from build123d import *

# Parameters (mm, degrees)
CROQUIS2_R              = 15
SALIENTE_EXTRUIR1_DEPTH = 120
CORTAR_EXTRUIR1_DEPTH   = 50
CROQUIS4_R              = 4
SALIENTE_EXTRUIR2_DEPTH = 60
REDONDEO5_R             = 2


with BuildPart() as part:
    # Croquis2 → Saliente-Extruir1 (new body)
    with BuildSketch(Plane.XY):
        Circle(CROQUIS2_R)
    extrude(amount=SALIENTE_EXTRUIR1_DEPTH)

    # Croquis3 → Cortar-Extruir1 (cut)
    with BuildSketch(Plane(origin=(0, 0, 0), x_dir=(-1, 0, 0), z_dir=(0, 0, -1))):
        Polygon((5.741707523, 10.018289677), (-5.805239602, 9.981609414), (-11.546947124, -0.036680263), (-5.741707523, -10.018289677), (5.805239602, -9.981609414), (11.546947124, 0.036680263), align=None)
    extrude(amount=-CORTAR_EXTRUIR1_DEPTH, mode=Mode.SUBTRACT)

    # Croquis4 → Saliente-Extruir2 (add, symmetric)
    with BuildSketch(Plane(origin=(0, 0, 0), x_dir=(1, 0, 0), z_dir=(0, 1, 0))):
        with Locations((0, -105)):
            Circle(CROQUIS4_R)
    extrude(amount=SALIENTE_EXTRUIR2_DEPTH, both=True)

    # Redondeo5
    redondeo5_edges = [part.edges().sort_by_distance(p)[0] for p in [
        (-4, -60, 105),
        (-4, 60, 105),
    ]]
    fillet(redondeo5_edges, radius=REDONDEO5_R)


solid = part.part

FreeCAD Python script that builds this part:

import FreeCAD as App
import Part
import Sketcher

V = App.Vector


def edges_at(feature, points):
    """Names of the edges that pass closest to the given points."""
    edges = feature.Shape.Edges
    near = lambda p: min(range(len(edges)), key=lambda i: edges[i].distToShape(Part.Vertex(*p))[0])
    return sorted({f"Edge{near(p) + 1}" for p in points})

doc = App.newDocument("Part")
body = doc.addObject("PartDesign::Body", "Body")

sketch1 = body.newObject("Sketcher::SketchObject", "Sketch")
sketch1.AttachmentSupport = (doc.getObject("XY_Plane"), [""])
sketch1.MapMode = "FlatFace"
sketch1.addGeometry(Part.Circle(V(0, 0, 0), V(0, 0, 1), 15), False)
sketch1.addConstraint(Sketcher.Constraint("Coincident", 0, 3, -1, 1))
sketch1.addConstraint(Sketcher.Constraint("Diameter", 0, 30.0))
pad1 = body.newObject("PartDesign::Pad", "Pad")
pad1.Profile = sketch1
pad1.Length = 120

sketch2 = body.newObject("Sketcher::SketchObject", "Sketch001")
sketch2.AttachmentSupport = (doc.getObject("XY_Plane"), [""])
sketch2.MapMode = "FlatFace"
sketch2.addGeometry(Part.LineSegment(V(-6, 10, 0), V(6, 10, 0)), False)
sketch2.addGeometry(Part.LineSegment(V(6, 10, 0), V(12, 0, 0)), False)
sketch2.addGeometry(Part.LineSegment(V(12, 0, 0), V(6, -10, 0)), False)
sketch2.addGeometry(Part.LineSegment(V(6, -10, 0), V(-6, -10, 0)), False)
sketch2.addGeometry(Part.LineSegment(V(-6, -10, 0), V(-12, 0, 0)), False)
sketch2.addGeometry(Part.LineSegment(V(-12, 0, 0), V(-6, 10, 0)), False)
sketch2.addConstraint(Sketcher.Constraint("Coincident", 0, 2, 1, 1))
sketch2.addConstraint(Sketcher.Constraint("Coincident", 1, 2, 2, 1))
sketch2.addConstraint(Sketcher.Constraint("Coincident", 2, 2, 3, 1))
sketch2.addConstraint(Sketcher.Constraint("Coincident", 3, 2, 4, 1))
sketch2.addConstraint(Sketcher.Constraint("Coincident", 4, 2, 5, 1))
sketch2.addConstraint(Sketcher.Constraint("Coincident", 5, 2, 0, 1))
sketch2.addConstraint(Sketcher.Constraint("Symmetric", 0, 2, 3, 2, -1, 1))
sketch2.addConstraint(Sketcher.Constraint("Symmetric", 1, 2, 4, 2, -1, 1))
sketch2.addConstraint(Sketcher.Constraint("Symmetric", 2, 2, 5, 2, -1, 1))
sketch2.addConstraint(Sketcher.Constraint("Equal", 0, 1))
sketch2.addConstraint(Sketcher.Constraint("Equal", 1, 2))
sketch2.addConstraint(Sketcher.Constraint("DistanceY", 2, 2, 0, 2, 19.999899))
sketch2.addConstraint(Sketcher.Constraint("DistanceX", -1, 1, 0, 2, 5.80524))
sketch2.addConstraint(Sketcher.Constraint("DistanceY", -1, 1, 0, 2, 9.981609))
sketch2.addConstraint(Sketcher.Constraint("DistanceY", 1, 2, -1, 1, 0.03668))
pocket1 = body.newObject("PartDesign::Pocket", "Pocket")
pocket1.Profile = sketch2
pocket1.Length = 50
pocket1.Reversed = True

sketch3 = body.newObject("Sketcher::SketchObject", "Sketch002")
sketch3.AttachmentSupport = (doc.getObject("XZ_Plane"), [""])
sketch3.MapMode = "FlatFace"
sketch3.addGeometry(Part.Circle(V(0, 105, 0), V(0, 0, 1), 4), False)
sketch3.addConstraint(Sketcher.Constraint("PointOnObject", 0, 3, -2))
sketch3.addConstraint(Sketcher.Constraint("Diameter", 0, 8.0))
sketch3.addConstraint(Sketcher.Constraint("DistanceY", -1, 1, 0, 3, 105.0))
pad2 = body.newObject("PartDesign::Pad", "Pad001")
pad2.Profile = sketch3
pad2.Length = 120
pad2.Midplane = True
doc.recompute()

fillet = body.newObject("PartDesign::Fillet", "Fillet")
fillet.Base = (pad2, edges_at(pad2, [(-4, -60, 105), (-4, 60, 105)]))
fillet.Radius = 2

doc.recompute()
